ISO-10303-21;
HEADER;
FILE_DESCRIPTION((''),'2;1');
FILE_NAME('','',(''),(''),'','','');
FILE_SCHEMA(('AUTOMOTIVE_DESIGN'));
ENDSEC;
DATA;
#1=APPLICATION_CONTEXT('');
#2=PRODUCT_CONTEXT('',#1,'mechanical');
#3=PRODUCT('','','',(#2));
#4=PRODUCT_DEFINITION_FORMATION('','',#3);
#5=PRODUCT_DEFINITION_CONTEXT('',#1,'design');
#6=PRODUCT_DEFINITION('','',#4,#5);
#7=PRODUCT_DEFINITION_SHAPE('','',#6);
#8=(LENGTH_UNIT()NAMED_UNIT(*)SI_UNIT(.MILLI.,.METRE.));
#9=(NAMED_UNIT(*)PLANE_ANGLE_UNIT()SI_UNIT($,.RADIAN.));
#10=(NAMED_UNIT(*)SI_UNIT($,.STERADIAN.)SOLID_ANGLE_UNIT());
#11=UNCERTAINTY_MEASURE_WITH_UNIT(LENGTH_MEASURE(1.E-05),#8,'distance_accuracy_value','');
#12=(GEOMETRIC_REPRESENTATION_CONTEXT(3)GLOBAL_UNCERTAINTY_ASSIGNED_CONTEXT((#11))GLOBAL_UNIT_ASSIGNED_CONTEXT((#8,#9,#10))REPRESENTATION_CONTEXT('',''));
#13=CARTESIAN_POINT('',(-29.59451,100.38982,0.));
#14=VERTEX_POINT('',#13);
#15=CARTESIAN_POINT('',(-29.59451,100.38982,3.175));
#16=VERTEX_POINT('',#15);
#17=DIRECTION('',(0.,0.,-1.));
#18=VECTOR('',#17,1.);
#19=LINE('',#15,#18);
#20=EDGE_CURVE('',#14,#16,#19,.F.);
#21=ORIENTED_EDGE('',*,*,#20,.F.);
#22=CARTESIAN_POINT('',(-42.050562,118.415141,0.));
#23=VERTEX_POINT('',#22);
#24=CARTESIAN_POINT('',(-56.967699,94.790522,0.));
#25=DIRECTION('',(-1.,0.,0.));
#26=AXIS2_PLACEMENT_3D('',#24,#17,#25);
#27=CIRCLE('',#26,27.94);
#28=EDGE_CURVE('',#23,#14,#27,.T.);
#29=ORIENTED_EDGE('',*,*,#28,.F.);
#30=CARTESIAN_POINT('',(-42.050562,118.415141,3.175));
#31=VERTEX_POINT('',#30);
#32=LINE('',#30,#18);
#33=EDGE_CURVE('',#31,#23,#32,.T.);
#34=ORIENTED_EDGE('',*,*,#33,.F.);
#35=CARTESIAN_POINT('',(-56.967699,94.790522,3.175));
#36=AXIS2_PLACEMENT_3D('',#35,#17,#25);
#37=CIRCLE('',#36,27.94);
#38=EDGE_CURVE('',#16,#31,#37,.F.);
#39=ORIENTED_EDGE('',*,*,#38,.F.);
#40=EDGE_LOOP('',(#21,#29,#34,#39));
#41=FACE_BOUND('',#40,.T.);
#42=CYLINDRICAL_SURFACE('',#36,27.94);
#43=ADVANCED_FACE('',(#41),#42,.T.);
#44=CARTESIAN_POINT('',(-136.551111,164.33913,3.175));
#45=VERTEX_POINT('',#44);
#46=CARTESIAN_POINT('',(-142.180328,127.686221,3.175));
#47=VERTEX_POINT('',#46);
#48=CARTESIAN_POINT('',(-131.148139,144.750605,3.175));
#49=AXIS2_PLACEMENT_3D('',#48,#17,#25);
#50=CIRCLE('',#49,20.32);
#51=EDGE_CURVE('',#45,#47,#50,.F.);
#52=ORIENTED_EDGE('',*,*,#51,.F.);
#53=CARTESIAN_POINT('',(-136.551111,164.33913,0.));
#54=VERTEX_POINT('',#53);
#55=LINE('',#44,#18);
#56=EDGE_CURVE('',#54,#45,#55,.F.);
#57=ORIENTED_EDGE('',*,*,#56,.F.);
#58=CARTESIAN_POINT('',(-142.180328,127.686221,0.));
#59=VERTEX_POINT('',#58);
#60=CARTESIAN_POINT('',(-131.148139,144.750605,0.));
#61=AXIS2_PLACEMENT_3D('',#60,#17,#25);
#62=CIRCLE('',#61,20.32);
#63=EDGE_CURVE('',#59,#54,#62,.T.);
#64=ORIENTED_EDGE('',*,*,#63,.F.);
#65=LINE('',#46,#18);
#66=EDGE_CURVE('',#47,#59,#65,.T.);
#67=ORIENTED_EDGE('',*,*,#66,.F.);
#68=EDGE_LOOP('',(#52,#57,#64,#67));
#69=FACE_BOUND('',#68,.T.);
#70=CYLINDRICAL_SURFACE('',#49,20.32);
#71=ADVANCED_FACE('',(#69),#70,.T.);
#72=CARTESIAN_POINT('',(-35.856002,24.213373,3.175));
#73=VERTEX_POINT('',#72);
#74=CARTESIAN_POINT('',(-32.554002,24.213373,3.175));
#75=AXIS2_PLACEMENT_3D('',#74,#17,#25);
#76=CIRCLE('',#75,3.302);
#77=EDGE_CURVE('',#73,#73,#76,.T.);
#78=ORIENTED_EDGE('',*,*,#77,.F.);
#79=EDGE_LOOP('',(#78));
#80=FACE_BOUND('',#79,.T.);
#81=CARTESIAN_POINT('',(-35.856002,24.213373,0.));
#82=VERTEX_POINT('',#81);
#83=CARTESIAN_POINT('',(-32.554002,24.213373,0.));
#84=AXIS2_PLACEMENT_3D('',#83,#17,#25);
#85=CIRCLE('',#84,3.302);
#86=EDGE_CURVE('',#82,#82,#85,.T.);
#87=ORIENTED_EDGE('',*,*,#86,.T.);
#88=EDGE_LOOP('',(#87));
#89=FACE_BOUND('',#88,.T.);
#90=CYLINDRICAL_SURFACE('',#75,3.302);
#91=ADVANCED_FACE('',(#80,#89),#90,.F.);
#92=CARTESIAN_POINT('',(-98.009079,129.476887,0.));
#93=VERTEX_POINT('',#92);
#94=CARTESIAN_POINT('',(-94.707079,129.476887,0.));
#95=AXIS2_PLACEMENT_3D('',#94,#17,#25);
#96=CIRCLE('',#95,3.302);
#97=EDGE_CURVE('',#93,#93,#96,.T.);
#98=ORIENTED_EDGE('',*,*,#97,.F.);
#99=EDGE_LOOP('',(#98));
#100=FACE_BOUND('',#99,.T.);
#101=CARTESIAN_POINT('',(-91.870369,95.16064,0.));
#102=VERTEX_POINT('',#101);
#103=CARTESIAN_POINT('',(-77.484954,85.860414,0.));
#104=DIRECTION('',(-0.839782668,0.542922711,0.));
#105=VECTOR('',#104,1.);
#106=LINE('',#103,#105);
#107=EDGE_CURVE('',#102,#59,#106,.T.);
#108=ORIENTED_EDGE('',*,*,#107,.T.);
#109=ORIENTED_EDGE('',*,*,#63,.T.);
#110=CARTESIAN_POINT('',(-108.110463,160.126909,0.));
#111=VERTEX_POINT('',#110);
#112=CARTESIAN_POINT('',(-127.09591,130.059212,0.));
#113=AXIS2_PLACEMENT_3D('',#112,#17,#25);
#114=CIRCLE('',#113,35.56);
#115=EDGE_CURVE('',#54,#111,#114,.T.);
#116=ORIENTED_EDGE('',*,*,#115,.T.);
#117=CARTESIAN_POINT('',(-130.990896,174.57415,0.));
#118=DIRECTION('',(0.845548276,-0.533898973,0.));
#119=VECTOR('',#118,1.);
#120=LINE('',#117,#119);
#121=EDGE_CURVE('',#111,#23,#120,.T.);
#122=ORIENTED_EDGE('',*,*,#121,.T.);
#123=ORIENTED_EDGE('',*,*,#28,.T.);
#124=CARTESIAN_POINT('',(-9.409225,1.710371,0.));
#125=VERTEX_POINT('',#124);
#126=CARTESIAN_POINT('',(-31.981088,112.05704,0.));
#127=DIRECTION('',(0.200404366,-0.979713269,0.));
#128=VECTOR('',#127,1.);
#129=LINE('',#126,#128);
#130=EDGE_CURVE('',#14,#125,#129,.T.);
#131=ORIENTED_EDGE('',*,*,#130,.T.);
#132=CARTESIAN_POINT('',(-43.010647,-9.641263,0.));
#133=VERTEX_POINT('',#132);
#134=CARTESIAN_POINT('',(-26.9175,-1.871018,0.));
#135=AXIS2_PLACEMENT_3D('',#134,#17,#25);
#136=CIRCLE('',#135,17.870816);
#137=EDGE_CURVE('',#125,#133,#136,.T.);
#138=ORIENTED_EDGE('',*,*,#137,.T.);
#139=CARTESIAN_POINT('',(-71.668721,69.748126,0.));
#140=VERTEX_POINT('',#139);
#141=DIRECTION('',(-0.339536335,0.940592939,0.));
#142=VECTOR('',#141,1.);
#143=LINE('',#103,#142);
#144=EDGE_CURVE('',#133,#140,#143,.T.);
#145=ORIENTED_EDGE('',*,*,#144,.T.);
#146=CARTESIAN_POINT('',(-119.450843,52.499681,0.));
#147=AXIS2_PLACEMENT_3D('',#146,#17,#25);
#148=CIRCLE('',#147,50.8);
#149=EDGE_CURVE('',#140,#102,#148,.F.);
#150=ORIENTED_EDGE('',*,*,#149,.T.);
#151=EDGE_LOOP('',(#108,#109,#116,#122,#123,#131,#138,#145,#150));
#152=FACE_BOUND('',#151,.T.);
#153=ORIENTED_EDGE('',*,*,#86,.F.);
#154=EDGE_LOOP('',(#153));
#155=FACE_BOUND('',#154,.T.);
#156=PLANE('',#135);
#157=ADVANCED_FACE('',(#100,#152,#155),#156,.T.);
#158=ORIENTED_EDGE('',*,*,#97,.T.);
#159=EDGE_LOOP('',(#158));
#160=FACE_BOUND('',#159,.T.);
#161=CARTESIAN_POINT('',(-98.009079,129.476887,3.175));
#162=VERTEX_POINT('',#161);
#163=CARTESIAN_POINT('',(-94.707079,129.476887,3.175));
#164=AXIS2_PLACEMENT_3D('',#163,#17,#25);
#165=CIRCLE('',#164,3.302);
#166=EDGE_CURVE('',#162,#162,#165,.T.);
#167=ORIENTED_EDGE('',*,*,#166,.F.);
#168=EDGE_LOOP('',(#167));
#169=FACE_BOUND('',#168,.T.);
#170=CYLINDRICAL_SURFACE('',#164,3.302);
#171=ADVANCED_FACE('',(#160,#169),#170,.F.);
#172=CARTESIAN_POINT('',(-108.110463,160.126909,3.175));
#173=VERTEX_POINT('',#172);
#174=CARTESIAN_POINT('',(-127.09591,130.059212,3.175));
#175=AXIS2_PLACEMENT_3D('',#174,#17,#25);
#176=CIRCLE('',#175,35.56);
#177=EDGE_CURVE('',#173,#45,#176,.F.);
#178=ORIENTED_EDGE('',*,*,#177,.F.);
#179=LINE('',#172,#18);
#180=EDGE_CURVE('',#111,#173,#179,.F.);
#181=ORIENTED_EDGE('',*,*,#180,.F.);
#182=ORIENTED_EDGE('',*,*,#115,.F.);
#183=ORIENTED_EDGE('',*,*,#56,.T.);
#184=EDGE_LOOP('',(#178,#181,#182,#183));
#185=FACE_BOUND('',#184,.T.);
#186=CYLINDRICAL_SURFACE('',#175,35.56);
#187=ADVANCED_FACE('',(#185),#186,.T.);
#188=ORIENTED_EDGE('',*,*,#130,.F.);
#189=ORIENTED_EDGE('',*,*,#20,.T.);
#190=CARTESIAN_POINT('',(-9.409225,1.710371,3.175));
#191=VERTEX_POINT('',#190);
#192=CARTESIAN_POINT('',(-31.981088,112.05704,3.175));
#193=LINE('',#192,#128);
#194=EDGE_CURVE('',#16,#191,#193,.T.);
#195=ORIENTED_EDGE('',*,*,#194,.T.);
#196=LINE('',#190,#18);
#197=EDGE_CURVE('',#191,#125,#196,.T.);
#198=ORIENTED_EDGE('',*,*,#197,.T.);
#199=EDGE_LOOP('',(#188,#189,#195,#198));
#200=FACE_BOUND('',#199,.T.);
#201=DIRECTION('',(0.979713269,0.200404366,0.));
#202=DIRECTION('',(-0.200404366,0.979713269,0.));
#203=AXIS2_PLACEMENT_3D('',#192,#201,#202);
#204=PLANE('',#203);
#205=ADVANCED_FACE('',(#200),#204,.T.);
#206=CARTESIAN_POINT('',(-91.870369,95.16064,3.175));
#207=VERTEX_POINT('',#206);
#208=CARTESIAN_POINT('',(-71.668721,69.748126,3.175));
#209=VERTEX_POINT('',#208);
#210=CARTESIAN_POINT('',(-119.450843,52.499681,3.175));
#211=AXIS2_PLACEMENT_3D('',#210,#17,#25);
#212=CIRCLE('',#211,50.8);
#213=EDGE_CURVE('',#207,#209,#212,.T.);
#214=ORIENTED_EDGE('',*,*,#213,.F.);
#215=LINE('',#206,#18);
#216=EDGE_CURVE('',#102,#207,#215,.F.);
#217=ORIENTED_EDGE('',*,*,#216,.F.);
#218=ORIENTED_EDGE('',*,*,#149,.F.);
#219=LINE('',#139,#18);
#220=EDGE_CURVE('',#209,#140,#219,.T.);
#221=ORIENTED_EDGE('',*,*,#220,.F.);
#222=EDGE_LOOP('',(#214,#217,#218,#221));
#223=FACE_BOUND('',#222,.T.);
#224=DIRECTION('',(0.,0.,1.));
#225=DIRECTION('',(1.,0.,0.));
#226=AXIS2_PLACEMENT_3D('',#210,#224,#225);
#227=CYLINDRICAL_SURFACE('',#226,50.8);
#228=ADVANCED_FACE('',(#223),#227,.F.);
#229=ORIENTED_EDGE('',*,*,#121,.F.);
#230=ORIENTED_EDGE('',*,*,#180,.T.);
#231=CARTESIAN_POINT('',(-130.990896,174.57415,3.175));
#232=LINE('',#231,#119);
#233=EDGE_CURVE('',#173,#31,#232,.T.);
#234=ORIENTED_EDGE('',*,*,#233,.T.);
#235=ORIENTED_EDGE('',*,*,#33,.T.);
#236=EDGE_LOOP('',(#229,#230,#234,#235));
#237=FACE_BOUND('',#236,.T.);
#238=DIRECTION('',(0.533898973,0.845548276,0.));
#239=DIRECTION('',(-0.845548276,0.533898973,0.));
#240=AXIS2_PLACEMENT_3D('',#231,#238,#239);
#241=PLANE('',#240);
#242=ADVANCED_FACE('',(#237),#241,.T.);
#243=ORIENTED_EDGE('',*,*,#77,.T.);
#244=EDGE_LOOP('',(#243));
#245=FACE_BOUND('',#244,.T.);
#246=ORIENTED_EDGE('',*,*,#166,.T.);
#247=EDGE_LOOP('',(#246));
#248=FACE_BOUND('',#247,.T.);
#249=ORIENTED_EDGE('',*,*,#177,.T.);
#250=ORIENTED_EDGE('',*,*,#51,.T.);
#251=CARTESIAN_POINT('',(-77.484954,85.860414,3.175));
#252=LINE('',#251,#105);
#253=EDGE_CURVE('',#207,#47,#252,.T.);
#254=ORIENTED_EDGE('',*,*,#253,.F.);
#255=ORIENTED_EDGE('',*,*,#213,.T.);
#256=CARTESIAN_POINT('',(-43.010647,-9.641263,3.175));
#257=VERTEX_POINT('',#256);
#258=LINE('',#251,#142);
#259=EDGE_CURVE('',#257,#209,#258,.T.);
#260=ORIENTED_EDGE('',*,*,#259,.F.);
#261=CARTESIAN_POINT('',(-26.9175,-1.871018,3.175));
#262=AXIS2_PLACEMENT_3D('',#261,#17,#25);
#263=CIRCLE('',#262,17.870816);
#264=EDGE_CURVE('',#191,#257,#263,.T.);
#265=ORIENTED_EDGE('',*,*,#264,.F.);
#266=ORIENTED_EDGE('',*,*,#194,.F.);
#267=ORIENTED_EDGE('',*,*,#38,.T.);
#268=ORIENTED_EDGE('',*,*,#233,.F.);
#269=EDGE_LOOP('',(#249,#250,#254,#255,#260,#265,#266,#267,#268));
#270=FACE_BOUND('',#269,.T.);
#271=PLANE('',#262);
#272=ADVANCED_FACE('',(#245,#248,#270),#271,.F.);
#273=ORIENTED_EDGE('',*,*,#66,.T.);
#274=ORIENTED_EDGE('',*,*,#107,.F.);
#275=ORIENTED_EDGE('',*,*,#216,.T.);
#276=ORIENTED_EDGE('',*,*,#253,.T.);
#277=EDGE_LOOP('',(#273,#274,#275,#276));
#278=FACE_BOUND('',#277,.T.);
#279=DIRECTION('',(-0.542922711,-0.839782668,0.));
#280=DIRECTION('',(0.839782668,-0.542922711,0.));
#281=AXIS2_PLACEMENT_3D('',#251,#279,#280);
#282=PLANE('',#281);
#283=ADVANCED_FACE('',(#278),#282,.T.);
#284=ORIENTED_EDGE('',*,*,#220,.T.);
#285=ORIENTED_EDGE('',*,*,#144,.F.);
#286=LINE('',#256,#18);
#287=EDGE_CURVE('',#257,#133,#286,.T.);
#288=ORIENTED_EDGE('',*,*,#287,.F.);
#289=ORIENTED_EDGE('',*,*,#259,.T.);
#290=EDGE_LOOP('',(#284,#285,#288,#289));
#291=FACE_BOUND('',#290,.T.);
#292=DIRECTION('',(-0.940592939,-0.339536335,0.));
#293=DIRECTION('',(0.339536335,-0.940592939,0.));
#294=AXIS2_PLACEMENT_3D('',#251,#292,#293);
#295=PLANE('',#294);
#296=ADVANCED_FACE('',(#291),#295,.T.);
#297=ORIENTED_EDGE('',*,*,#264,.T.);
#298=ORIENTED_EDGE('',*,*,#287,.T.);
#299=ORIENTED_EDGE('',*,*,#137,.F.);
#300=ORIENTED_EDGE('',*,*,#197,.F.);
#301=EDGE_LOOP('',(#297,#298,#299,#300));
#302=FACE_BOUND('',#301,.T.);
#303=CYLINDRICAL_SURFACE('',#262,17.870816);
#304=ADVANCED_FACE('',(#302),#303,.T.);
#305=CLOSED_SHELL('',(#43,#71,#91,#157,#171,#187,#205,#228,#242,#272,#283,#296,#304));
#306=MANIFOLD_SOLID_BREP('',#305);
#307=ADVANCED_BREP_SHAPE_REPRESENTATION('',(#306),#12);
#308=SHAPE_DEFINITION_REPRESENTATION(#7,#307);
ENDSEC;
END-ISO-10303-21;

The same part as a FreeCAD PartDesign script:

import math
import FreeCAD as App
import Part
import Sketcher
Q = App.Units.Quantity


def edges_at(feature, points):
    """Names of the edges that pass closest to the given points."""
    edges = feature.Shape.Edges
    near = lambda p: min(range(len(edges)), key=lambda i: edges[i].distToShape(Part.Vertex(*p))[0])
    return sorted({f"Edge{near(p) + 1}" for p in points})

doc = App.newDocument("Part")
body = doc.addObject("PartDesign::Body", "Body")

# Sketch on XY plane
sketch1 = body.newObject("Sketcher::SketchObject", "Sketch")
sketch1.AttachmentSupport = (doc.getObject("XY_Plane"), [""])
sketch1.MapMode = "FlatFace"
sketch1.addGeometry([
    Part.LineSegment(App.Vector(-165.8, 142.9, 0), App.Vector(-131, 174.6, 0)),  # 0
    Part.LineSegment(App.Vector(-131, 174.6, 0), App.Vector(-32, 112.1, 0)),  # 1
    Part.LineSegment(App.Vector(-32, 112.1, 0), App.Vector(-9.4, 1.7, 0)),  # 2
    Part.ArcOfCircle(Part.Circle(App.Vector(-26.9, -1.9, 0), App.Vector(0, 0, 1), 17.9), math.radians(-154), math.radians(12)),  # 3
    Part.LineSegment(App.Vector(-43, -9.6, 0), App.Vector(-77.5, 85.9, 0)),  # 4
    Part.LineSegment(App.Vector(-77.5, 85.9, 0), App.Vector(-165.8, 142.9, 0)),  # 5
    Part.Circle(App.Vector(-32.6, 24.2, 0), App.Vector(0, 0, 1), 3.3),  # 6
    Part.Circle(App.Vector(-94.7, 129.5, 0), App.Vector(0, 0, 1), 3.3),  # 7
], False)
sketch1.addConstraint([
    Sketcher.Constraint("Coincident", 0, 2, 1, 1),
    Sketcher.Constraint("Coincident", 1, 2, 2, 1),
    Sketcher.Constraint("Tangent", 2, 2, 3, 2),
    Sketcher.Constraint("Coincident", 3, 1, 4, 1),
    Sketcher.Constraint("Coincident", 4, 2, 5, 1),
    Sketcher.Constraint("Coincident", 5, 2, 0, 1),
    Sketcher.Constraint("Equal", 6, 7),
    Sketcher.Constraint("Diameter", 6, Q("0.26 in")),
    Sketcher.Constraint("Radius", 3, 17.870816),
    Sketcher.Constraint("DistanceX", 3, 3, -1, 1, 26.9175),
    Sketcher.Constraint("DistanceX", 6, 3, -1, 1, 32.554002),
    Sketcher.Constraint("DistanceX", 5, 2, 4, 2, 88.300099),
    Sketcher.Constraint("Distance", 0, 47.020472),
    Sketcher.Constraint("Distance", 5, 105.14637),
    Sketcher.Constraint("DistanceY", 3, 3, -1, 1, 1.871018),
    Sketcher.Constraint("DistanceX", 7, 3, -1, 1, 94.707079),
    Sketcher.Constraint("DistanceY", -1, 1, 0, 2, 174.57415),
    Sketcher.Constraint("DistanceY", -1, 1, 1, 2, 112.05704),
    Sketcher.Constraint("DistanceY", -1, 1, 2, 2, 1.710371),
    Sketcher.Constraint("DistanceY", 3, 3, 6, 3, 26.084392),
    Sketcher.Constraint("DistanceX", 0, 2, 1, 2, 99.009808),
    Sketcher.Constraint("DistanceX", 3, 1, 1, 2, 11.029559),
    Sketcher.Constraint("DistanceY", 3, 1, 7, 3, 139.11815),
    Sketcher.Constraint("DistanceY", 6, 3, 4, 2, 61.647041),
])
pad1 = body.newObject("PartDesign::Pad", "Pad")
pad1.Profile = sketch1
pad1.Length = Q("0.125 in")
doc.recompute()

fillet = body.newObject("PartDesign::Fillet", "Fillet")
fillet.Base = (pad1, edges_at(pad1, [(-130.991, 174.574, 1.587)]))
fillet.Radius = Q("1.4 in")
doc.recompute()

fillet2 = body.newObject("PartDesign::Fillet", "Fillet001")
fillet2.Base = (fillet, edges_at(fillet, [(-31.981, 112.057, 1.587)]))
fillet2.Radius = Q("1.1 in")
doc.recompute()

fillet3 = body.newObject("PartDesign::Fillet", "Fillet002")
fillet3.Base = (fillet2, edges_at(fillet2, [(-77.485, 85.86, 1.587)]))
fillet3.Radius = Q("2 in")
doc.recompute()

fillet4 = body.newObject("PartDesign::Fillet", "Fillet003")
fillet4.Base = (fillet3, edges_at(fillet3, [(-165.785, 142.947, 1.587)]))
fillet4.Radius = Q("0.8 in")

doc.recompute()
